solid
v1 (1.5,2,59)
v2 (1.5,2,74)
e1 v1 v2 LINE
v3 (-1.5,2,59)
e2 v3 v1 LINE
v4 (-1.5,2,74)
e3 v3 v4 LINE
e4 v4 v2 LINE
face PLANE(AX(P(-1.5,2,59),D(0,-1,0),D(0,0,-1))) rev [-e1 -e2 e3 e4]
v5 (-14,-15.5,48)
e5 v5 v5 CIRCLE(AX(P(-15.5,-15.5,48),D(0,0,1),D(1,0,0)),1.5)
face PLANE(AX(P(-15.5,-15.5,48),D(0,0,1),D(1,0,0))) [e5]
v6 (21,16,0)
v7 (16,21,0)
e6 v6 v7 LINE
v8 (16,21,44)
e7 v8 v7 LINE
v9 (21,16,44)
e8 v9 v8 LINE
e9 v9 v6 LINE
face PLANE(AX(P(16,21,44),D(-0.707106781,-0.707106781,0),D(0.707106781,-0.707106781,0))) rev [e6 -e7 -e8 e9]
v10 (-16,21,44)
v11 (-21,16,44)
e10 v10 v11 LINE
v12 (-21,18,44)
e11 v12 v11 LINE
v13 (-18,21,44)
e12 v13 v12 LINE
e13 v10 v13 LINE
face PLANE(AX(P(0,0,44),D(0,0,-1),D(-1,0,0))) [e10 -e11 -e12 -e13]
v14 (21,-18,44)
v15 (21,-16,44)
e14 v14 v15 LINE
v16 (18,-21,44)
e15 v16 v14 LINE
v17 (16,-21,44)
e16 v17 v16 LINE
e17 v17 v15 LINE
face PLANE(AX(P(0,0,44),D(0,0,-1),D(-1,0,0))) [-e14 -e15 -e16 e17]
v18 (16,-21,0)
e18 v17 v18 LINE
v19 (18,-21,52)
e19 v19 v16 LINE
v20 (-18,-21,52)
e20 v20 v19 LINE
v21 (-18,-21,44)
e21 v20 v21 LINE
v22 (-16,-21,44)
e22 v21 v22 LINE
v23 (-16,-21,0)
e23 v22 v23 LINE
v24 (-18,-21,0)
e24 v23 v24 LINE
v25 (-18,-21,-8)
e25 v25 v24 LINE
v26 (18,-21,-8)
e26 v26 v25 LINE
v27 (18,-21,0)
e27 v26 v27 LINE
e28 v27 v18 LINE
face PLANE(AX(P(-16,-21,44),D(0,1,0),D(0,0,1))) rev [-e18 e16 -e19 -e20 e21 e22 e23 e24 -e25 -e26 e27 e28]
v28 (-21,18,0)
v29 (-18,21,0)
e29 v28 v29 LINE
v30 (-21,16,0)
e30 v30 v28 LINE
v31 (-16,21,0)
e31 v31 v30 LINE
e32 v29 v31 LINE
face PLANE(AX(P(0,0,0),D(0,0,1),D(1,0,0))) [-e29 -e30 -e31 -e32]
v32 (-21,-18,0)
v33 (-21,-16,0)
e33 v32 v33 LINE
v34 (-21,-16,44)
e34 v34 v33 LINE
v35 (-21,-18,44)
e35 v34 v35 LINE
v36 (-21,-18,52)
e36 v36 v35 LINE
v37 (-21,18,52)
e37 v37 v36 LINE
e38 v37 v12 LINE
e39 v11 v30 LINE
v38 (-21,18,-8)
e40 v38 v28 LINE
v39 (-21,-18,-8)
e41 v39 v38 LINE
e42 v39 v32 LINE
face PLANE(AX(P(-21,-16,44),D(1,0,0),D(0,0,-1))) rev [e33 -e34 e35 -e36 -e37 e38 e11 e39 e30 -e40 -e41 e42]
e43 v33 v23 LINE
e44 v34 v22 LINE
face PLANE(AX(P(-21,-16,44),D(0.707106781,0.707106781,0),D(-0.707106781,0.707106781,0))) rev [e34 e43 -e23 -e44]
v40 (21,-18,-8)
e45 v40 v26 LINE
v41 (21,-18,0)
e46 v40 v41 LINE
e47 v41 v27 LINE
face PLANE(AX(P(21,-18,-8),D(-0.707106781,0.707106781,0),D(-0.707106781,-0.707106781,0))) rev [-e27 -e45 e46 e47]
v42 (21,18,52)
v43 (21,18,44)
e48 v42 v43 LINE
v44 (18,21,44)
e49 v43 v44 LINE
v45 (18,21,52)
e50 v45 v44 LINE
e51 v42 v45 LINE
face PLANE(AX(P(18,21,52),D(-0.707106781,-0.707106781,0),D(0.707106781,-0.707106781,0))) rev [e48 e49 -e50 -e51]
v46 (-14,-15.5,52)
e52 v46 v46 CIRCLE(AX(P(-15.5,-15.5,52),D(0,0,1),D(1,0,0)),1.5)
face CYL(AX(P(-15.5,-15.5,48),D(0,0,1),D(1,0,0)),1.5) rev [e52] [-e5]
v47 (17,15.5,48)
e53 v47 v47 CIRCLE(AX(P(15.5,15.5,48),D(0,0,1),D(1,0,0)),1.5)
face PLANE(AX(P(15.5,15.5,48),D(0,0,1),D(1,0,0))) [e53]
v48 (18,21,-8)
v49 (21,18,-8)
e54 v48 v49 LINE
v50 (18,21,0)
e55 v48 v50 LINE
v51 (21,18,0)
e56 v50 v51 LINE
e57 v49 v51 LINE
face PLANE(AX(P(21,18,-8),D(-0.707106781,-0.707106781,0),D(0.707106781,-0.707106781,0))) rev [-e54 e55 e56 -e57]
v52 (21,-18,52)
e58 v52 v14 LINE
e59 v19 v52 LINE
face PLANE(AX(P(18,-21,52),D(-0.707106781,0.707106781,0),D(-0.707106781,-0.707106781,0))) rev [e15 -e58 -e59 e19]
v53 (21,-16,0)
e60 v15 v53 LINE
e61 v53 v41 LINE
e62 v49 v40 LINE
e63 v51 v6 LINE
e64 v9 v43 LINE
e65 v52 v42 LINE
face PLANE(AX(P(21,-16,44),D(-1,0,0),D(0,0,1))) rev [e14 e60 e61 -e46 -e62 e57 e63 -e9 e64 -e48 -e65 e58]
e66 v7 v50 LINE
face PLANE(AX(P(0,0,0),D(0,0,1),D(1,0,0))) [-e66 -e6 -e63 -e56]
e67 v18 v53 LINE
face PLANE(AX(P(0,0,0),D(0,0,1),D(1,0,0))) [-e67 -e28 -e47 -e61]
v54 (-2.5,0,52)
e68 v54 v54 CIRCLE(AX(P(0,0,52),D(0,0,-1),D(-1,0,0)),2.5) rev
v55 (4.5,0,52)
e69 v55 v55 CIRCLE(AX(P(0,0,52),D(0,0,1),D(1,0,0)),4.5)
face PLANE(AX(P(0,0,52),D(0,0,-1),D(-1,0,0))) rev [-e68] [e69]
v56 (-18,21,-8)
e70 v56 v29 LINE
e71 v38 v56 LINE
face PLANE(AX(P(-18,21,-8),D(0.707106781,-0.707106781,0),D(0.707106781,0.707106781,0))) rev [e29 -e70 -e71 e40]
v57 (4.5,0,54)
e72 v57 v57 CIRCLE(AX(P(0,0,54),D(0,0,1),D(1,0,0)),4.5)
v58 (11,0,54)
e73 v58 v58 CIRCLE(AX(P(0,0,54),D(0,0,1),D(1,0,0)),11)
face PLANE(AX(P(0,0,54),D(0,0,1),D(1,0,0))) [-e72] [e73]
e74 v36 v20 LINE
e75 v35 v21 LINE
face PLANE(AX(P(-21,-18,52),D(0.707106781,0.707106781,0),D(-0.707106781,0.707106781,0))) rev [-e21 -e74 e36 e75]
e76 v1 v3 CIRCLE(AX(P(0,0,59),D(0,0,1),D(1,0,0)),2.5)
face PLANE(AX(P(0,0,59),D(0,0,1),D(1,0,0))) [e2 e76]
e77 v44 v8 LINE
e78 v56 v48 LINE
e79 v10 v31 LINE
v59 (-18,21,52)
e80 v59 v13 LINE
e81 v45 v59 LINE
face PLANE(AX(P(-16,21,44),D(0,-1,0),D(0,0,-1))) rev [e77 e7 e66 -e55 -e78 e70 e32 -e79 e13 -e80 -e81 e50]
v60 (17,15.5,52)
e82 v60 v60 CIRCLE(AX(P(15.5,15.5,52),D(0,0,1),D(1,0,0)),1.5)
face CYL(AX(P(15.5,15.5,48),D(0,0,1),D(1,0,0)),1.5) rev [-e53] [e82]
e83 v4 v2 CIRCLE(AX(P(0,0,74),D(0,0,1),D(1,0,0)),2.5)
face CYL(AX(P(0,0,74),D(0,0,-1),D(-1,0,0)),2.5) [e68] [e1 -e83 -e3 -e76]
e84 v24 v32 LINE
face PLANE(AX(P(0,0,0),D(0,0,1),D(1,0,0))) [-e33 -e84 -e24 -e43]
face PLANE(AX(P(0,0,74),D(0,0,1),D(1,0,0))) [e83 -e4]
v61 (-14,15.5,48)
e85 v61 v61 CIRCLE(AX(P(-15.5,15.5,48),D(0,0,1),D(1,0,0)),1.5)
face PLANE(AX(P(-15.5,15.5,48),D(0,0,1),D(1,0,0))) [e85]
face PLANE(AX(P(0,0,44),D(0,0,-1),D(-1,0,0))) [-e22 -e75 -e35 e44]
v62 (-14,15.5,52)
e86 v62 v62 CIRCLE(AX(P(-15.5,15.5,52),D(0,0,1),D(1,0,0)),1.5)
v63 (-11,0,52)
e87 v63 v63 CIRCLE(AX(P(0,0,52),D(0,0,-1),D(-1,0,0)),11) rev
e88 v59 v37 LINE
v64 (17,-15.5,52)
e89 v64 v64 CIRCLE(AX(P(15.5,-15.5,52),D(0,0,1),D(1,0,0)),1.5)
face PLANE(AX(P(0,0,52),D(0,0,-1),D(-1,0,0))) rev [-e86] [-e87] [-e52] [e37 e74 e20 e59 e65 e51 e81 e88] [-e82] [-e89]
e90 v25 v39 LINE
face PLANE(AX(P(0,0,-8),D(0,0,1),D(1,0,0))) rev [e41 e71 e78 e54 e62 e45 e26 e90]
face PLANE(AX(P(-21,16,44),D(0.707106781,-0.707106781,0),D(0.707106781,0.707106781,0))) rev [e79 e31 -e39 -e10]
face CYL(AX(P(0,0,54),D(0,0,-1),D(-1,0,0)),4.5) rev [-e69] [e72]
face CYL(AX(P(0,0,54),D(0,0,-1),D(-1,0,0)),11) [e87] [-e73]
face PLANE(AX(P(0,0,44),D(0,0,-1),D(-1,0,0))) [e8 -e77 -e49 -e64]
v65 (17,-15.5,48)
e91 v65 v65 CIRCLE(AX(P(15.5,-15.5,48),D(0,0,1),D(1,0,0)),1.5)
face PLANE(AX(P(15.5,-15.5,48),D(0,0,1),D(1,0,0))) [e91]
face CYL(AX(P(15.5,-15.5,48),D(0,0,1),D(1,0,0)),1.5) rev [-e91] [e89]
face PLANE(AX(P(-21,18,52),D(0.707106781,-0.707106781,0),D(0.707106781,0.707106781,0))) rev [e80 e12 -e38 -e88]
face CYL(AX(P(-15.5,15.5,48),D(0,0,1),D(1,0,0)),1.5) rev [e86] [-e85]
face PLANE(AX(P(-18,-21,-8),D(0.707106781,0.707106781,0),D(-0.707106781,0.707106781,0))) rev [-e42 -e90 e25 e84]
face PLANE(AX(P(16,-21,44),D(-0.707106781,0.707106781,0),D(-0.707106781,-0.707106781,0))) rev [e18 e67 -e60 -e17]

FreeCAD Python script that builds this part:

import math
import FreeCAD as App
import Part
import Sketcher
from FreeCAD import Vector
Q = App.Units.Quantity


def add_polygon(sketch, points):
    """Adds a closed chain of lines whose ends are joined by coincident constraints."""
    first, n = sketch.GeometryCount, len(points)
    for a, b in zip(points, points[1:] + points[:1]):
        sketch.addGeometry(Part.LineSegment(App.Vector(*a, 0), App.Vector(*b, 0)), False)
    for i in range(n):
        sketch.addConstraint(Sketcher.Constraint("Coincident", first + i, 2, first + (i + 1) % n, 1))

doc = App.newDocument("Part")
body = doc.addObject("PartDesign::Body", "Body")

# Sketch on XY plane
sketch1 = doc.addObject("Sketcher::SketchObject", "Sketch")
body.addObject(sketch1)
sketch1.AttachmentSupport = (doc.XY_Plane, [""])
sketch1.MapMode = "FlatFace"
add_polygon(sketch1, [(-16, 21), (-21, 16), (-21, -16), (-16, -21), (16, -21), (21, -16), (21, 16), (16, 21)])  # lines 0-7
sketch1.addConstraint(Sketcher.Constraint("Vertical", 1))
sketch1.addConstraint(Sketcher.Constraint("Horizontal", 3))
sketch1.addConstraint(Sketcher.Constraint("Vertical", 5))
sketch1.addConstraint(Sketcher.Constraint("Horizontal", 7))
sketch1.addConstraint(Sketcher.Constraint("Symmetric", 0, 2, 4, 2, -1, 1))
sketch1.addConstraint(Sketcher.Constraint("Symmetric", 2, 2, 6, 2, -1, 1))
sketch1.addConstraint(Sketcher.Constraint("Perpendicular", 0, 2))
sketch1.addConstraint(Sketcher.Constraint("Perpendicular", 2, 4))
sketch1.addConstraint(Sketcher.Constraint("Perpendicular", 4, 6))
sketch1.addConstraint(Sketcher.Constraint("Horizontal", 1, 2, 4, 2))
sketch1.addConstraint(Sketcher.Constraint("Vertical", 3, 2, 6, 2))
sketch1.addConstraint(Sketcher.Constraint("Equal", 7, 1))
sketch1.addConstraint(Sketcher.Constraint("DistanceX", 3, 1, 3, 2, Q("32 mm")))
sketch1.addConstraint(Sketcher.Constraint("DistanceX", 0, 2, -1, 1, Q("21 mm")))
pad1 = doc.addObject("PartDesign::Pad", "Pad")
body.addObject(pad1)
pad1.Profile = sketch1
pad1.Length = 44

# Sketch on XY plane
sketch2 = doc.addObject("Sketcher::SketchObject", "Sketch001")
body.addObject(sketch2)
sketch2.AttachmentSupport = (doc.XY_Plane, [""])
sketch2.MapMode = "FlatFace"
sketch2.AttachmentOffset = App.Placement(Vector(0, 0, 44), App.Rotation())
add_polygon(sketch2, [(-18, 21), (-21, 18), (-21, -18), (-18, -21), (18, -21), (21, -18), (21, 18), (18, 21)])  # lines 0-7
sketch2.addConstraint(Sketcher.Constraint("Vertical", 1))
sketch2.addConstraint(Sketcher.Constraint("Horizontal", 3))
sketch2.addConstraint(Sketcher.Constraint("Vertical", 5))
sketch2.addConstraint(Sketcher.Constraint("Horizontal", 7))
sketch2.addConstraint(Sketcher.Constraint("Symmetric", 0, 2, 4, 2, -1, 1))
sketch2.addConstraint(Sketcher.Constraint("Symmetric", 2, 2, 6, 2, -1, 1))
sketch2.addConstraint(Sketcher.Constraint("Perpendicular", 0, 2))
sketch2.addConstraint(Sketcher.Constraint("Perpendicular", 2, 4))
sketch2.addConstraint(Sketcher.Constraint("Perpendicular", 4, 6))
sketch2.addConstraint(Sketcher.Constraint("Horizontal", 1, 2, 4, 2))
sketch2.addConstraint(Sketcher.Constraint("Vertical", 3, 2, 6, 2))
sketch2.addConstraint(Sketcher.Constraint("Equal", 7, 1))
sketch2.addConstraint(Sketcher.Constraint("DistanceX", 3, 1, 3, 2, Q("36 mm")))
sketch2.addConstraint(Sketcher.Constraint("DistanceX", 0, 2, -1, 1, Q("21 mm")))
pad2 = doc.addObject("PartDesign::Pad", "Pad001")
body.addObject(pad2)
pad2.Profile = sketch2
pad2.Length = 8

# Sketch on XY plane
sketch3 = doc.addObject("Sketcher::SketchObject", "Sketch002")
body.addObject(sketch3)
sketch3.AttachmentSupport = (doc.XY_Plane, [""])
sketch3.MapMode = "FlatFace"
add_polygon(sketch3, [(18, 21), (21, 18), (21, -18), (18, -21), (-18, -21), (-21, -18), (-21, 18), (-18, 21)])  # lines 0-7
sketch3.addConstraint(Sketcher.Constraint("Vertical", 1))
sketch3.addConstraint(Sketcher.Constraint("Horizontal", 3))
sketch3.addConstraint(Sketcher.Constraint("Vertical", 5))
sketch3.addConstraint(Sketcher.Constraint("Horizontal", 7))
sketch3.addConstraint(Sketcher.Constraint("Symmetric", 0, 2, 4, 2, -1, 1))
sketch3.addConstraint(Sketcher.Constraint("Symmetric", 2, 2, 6, 2, -1, 1))
sketch3.addConstraint(Sketcher.Constraint("Perpendicular", 0, 2))
sketch3.addConstraint(Sketcher.Constraint("Perpendicular", 2, 4))
sketch3.addConstraint(Sketcher.Constraint("Perpendicular", 4, 6))
sketch3.addConstraint(Sketcher.Constraint("Horizontal", 1, 2, 4, 2))
sketch3.addConstraint(Sketcher.Constraint("Vertical", 3, 2, 6, 2))
sketch3.addConstraint(Sketcher.Constraint("Equal", 7, 1))
sketch3.addConstraint(Sketcher.Constraint("DistanceX", 3, 2, 3, 1, Q("36 mm")))
sketch3.addConstraint(Sketcher.Constraint("DistanceX", -1, 1, 0, 2, Q("21 mm")))
pad3 = doc.addObject("PartDesign::Pad", "Pad002")
body.addObject(pad3)
pad3.Profile = sketch3
pad3.Length = 8
pad3.Reversed = True

# Sketch on XY plane
sketch4 = doc.addObject("Sketcher::SketchObject", "Sketch003")
body.addObject(sketch4)
sketch4.AttachmentSupport = (doc.XY_Plane, [""])
sketch4.MapMode = "FlatFace"
sketch4.AttachmentOffset = App.Placement(Vector(0, 0, 52), App.Rotation())
sketch4.addGeometry(Part.Circle(Vector(0, 0, 0), Vector(0, 0, 1), 11), False)
sketch4.addGeometry(Part.Circle(Vector(0, 0, 0), Vector(0, 0, 1), 4.5), False)
sketch4.addConstraint(Sketcher.Constraint("Coincident", 0, 3, -1, 1))
sketch4.addConstraint(Sketcher.Constraint("Coincident", 1, 3, -1, 1))
sketch4.addConstraint(Sketcher.Constraint("Diameter", 0, Q("22 mm")))
sketch4.addConstraint(Sketcher.Constraint("Diameter", 1, Q("9 mm")))
pad4 = doc.addObject("PartDesign::Pad", "Pad003")
body.addObject(pad4)
pad4.Profile = sketch4
pad4.Length = 2

# Sketch on XY plane
sketch5 = doc.addObject("Sketcher::SketchObject", "Sketch004")
body.addObject(sketch5)
sketch5.AttachmentSupport = (doc.XY_Plane, [""])
sketch5.MapMode = "FlatFace"
sketch5.AttachmentOffset = App.Placement(Vector(0, 0, 52), App.Rotation())
sketch5.addGeometry(Part.Circle(Vector(0, 0, 0), Vector(0, 0, 1), 2.5), False)
sketch5.addConstraint(Sketcher.Constraint("Coincident", 0, 3, -1, 1))
sketch5.addConstraint(Sketcher.Constraint("Diameter", 0, Q("5 mm")))
pad5 = doc.addObject("PartDesign::Pad", "Pad004")
body.addObject(pad5)
pad5.Profile = sketch5
pad5.Length = 22

# Sketch on XY plane
sketch6 = doc.addObject("Sketcher::SketchObject", "Sketch005")
body.addObject(sketch6)
sketch6.AttachmentSupport = (doc.XY_Plane, [""])
sketch6.MapMode = "FlatFace"
sketch6.AttachmentOffset = App.Placement(Vector(0, 0, 59), App.Rotation())
sketch6.addGeometry(Part.LineSegment(Vector(-1.5, 2, 0), Vector(1.5, 2, 0)), False)
sketch6.addGeometry(Part.ArcOfCircle(Part.Circle(Vector(0, 0, 0), Vector(0, 0, 1), 2.5), math.radians(53.130102), math.radians(126.869898)), False)
sketch6.addConstraint(Sketcher.Constraint("Coincident", 0, 1, 1, 2))
sketch6.addConstraint(Sketcher.Constraint("Coincident", 1, 1, 0, 2))
sketch6.addConstraint(Sketcher.Constraint("Horizontal", 0))
sketch6.addConstraint(Sketcher.Constraint("Coincident", 1, 3, -1, 1))
sketch6.addConstraint(Sketcher.Constraint("Radius", 1, Q("2.5 mm")))
sketch6.addConstraint(Sketcher.Constraint("DistanceX", 0, 1, 0, 2, Q("3 mm")))
pocket1 = doc.addObject("PartDesign::Pocket", "Pocket")
body.addObject(pocket1)
pocket1.Profile = sketch6
pocket1.Length = 15
pocket1.Reversed = True

# Sketch on XY plane
sketch7 = doc.addObject("Sketcher::SketchObject", "Sketch006")
body.addObject(sketch7)
sketch7.AttachmentSupport = (doc.XY_Plane, [""])
sketch7.MapMode = "FlatFace"
sketch7.AttachmentOffset = App.Placement(Vector(0, 0, 52), App.Rotation())
sketch7.addGeometry(Part.Circle(Vector(-15.5, 15.5, 0), Vector(0, 0, 1), 1.5), False)
sketch7.addGeometry(Part.Circle(Vector(15.5, 15.5, 0), Vector(0, 0, 1), 1.5), False)
sketch7.addGeometry(Part.Circle(Vector(15.5, -15.5, 0), Vector(0, 0, 1), 1.5), False)
sketch7.addGeometry(Part.Circle(Vector(-15.5, -15.5, 0), Vector(0, 0, 1), 1.5), False)
sketch7.addConstraint(Sketcher.Constraint("Equal", 0, 1))
sketch7.addConstraint(Sketcher.Constraint("Equal", 1, 2))
sketch7.addConstraint(Sketcher.Constraint("Equal", 2, 3))
sketch7.addConstraint(Sketcher.Constraint("Symmetric", 0, 3, 2, 3, -1, 1))
sketch7.addConstraint(Sketcher.Constraint("Symmetric", 1, 3, 3, 3, -1, 1))
sketch7.addConstraint(Sketcher.Constraint("Symmetric", 0, 3, 1, 3, -2))
sketch7.addConstraint(Sketcher.Constraint("Diameter", 0, Q("3 mm")))
sketch7.addConstraint(Sketcher.Constraint("DistanceX", 0, 3, 1, 3, Q("31 mm")))
sketch7.addConstraint(Sketcher.Constraint("DistanceY", 2, 3, 1, 3, Q("31 mm")))
pocket2 = doc.addObject("PartDesign::Pocket", "Pocket001")
body.addObject(pocket2)
pocket2.Profile = sketch7
pocket2.Length = 4

doc.recompute()
